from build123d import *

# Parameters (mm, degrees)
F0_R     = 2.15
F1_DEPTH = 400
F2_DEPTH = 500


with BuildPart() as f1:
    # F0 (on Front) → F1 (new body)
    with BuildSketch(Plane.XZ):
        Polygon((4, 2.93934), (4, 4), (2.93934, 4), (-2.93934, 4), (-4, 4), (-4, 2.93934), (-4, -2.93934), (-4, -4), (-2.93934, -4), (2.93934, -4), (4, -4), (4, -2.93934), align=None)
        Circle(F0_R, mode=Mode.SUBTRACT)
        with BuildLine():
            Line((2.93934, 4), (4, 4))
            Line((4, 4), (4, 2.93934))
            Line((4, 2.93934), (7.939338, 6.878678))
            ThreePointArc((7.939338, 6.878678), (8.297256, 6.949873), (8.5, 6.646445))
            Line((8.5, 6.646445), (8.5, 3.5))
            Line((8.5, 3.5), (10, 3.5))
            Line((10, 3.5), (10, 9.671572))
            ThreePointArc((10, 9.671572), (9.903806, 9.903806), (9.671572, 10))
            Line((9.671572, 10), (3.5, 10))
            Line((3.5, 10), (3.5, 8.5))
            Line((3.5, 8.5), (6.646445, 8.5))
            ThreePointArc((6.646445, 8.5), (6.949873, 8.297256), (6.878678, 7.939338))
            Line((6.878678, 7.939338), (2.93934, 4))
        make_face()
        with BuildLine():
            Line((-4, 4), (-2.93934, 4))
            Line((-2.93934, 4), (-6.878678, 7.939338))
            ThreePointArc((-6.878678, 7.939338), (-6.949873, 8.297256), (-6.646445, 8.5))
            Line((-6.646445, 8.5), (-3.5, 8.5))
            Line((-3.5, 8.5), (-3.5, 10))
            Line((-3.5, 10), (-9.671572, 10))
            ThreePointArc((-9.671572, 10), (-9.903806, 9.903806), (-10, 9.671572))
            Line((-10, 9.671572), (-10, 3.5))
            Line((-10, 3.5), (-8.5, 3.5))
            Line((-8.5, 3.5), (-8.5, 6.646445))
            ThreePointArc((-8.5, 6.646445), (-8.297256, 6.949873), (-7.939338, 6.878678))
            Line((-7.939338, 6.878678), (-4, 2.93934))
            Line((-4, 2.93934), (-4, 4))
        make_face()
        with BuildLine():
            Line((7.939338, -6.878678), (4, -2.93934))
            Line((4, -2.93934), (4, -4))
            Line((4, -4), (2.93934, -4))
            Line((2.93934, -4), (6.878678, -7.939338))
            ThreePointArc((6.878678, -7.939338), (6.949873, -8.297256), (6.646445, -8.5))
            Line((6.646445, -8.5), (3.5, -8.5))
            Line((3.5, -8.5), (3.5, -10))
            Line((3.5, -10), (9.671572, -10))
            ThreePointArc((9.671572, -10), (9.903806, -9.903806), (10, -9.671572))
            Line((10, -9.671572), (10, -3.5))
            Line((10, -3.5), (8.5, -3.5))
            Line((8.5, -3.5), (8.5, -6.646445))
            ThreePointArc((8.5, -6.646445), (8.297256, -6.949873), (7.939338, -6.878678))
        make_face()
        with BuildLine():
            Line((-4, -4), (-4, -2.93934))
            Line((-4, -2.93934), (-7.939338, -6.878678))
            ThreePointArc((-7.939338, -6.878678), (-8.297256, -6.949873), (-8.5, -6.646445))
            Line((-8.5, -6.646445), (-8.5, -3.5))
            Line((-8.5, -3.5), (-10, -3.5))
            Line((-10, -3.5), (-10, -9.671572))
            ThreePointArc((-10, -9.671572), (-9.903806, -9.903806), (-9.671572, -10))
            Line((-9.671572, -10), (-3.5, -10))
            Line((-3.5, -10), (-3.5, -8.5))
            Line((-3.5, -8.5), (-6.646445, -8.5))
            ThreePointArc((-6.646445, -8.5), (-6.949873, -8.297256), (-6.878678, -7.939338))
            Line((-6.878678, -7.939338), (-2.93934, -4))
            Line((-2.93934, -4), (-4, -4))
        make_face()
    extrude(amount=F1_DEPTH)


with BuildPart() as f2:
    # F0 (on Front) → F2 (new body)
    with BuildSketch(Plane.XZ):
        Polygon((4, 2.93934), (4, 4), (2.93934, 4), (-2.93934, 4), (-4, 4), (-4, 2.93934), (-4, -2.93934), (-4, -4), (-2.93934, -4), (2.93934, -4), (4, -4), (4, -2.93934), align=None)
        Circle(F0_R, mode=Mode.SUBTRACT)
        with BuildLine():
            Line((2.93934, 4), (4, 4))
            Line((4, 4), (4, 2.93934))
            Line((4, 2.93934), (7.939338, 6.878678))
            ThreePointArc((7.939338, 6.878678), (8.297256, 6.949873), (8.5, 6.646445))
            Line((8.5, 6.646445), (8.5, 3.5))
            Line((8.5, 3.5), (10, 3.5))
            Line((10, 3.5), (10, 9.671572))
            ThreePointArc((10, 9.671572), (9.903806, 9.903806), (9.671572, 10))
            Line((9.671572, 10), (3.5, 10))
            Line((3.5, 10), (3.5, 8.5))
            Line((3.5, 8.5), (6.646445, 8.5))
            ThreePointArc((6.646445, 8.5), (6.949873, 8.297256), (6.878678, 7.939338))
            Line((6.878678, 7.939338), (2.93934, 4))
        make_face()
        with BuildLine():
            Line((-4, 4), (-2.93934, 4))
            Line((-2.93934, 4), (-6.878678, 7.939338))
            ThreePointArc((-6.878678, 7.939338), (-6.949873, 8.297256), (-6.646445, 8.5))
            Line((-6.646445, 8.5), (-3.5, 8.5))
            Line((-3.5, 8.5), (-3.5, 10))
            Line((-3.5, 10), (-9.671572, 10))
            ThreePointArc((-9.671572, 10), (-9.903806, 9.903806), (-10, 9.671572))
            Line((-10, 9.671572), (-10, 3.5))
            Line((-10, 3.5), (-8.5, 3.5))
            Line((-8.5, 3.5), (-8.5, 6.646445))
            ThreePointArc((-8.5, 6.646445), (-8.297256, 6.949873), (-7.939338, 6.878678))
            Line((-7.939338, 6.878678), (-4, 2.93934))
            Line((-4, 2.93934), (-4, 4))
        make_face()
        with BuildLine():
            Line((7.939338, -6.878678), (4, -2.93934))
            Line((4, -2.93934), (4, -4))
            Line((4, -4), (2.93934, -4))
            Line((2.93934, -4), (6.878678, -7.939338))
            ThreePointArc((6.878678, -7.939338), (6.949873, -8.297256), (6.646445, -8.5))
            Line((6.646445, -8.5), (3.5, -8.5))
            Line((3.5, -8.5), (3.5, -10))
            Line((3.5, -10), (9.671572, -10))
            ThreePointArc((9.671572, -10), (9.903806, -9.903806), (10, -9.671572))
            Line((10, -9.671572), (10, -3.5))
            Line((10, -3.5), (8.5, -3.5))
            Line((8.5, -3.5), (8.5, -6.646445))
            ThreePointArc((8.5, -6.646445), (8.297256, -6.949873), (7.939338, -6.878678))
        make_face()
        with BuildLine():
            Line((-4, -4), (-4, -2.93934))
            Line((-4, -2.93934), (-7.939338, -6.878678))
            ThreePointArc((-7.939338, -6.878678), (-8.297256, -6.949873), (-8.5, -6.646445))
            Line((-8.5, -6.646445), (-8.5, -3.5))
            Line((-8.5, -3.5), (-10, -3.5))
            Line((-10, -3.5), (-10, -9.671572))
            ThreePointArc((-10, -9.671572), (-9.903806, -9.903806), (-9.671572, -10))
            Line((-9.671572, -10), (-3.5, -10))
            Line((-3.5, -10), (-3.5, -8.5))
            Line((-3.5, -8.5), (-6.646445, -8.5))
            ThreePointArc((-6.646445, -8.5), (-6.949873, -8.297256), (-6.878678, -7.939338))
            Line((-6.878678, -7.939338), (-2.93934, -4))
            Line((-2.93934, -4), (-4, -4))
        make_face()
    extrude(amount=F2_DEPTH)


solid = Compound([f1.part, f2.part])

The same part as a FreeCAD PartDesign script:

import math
import FreeCAD as App
import Part
import Sketcher

doc = App.newDocument("Part")
body = doc.addObject("PartDesign::Body", "Body")

# Sketch on XZ plane
sketch1 = body.newObject("Sketcher::SketchObject", "Sketch")
sketch1.AttachmentSupport = (doc.getObject("XZ_Plane"), [""])
sketch1.MapMode = "FlatFace"
sketch1.addGeometry([
    Part.LineSegment(App.Vector(2.94, 4, 0), App.Vector(-2.94, 4, 0)),  # 0
    Part.LineSegment(App.Vector(-2.94, 4, 0), App.Vector(-6.88, 7.94, 0)),  # 1
    Part.ArcOfCircle(Part.Circle(App.Vector(-6.65, 8.17, 0), App.Vector(0, 0, 1), 0.33), math.radians(90), math.radians(225)),  # 2
    Part.LineSegment(App.Vector(-6.65, 8.5, 0), App.Vector(-3.5, 8.5, 0)),  # 3
    Part.LineSegment(App.Vector(-3.5, 8.5, 0), App.Vector(-3.5, 10, 0)),  # 4
    Part.LineSegment(App.Vector(-3.5, 10, 0), App.Vector(-9.67, 10, 0)),  # 5
    Part.ArcOfCircle(Part.Circle(App.Vector(-9.67, 9.67, 0), App.Vector(0, 0, 1), 0.33), math.radians(90), math.radians(180)),  # 6
    Part.LineSegment(App.Vector(-10, 9.67, 0), App.Vector(-10, 3.5, 0)),  # 7
    Part.LineSegment(App.Vector(-10, 3.5, 0), App.Vector(-8.5, 3.5, 0)),  # 8
    Part.LineSegment(App.Vector(-8.5, 3.5, 0), App.Vector(-8.5, 6.65, 0)),  # 9
    Part.ArcOfCircle(Part.Circle(App.Vector(-8.17, 6.65, 0), App.Vector(0, 0, 1), 0.33), math.radians(45), math.radians(180)),  # 10
    Part.LineSegment(App.Vector(-7.94, 6.88, 0), App.Vector(-4, 2.94, 0)),  # 11
    Part.LineSegment(App.Vector(-4, 2.94, 0), App.Vector(-4, -2.94, 0)),  # 12
    Part.LineSegment(App.Vector(-4, -2.94, 0), App.Vector(-7.94, -6.88, 0)),  # 13
    Part.ArcOfCircle(Part.Circle(App.Vector(-8.17, -6.65, 0), App.Vector(0, 0, 1), 0.33), math.radians(180), math.radians(315)),  # 14
    Part.LineSegment(App.Vector(-8.5, -6.65, 0), App.Vector(-8.5, -3.5, 0)),  # 15
    Part.LineSegment(App.Vector(-8.5, -3.5, 0), App.Vector(-10, -3.5, 0)),  # 16
    Part.LineSegment(App.Vector(-10, -3.5, 0), App.Vector(-10, -9.67, 0)),  # 17
    Part.ArcOfCircle(Part.Circle(App.Vector(-9.67, -9.67, 0), App.Vector(0, 0, 1), 0.33), math.radians(180), math.radians(270)),  # 18
    Part.LineSegment(App.Vector(-9.67, -10, 0), App.Vector(-3.5, -10, 0)),  # 19
    Part.LineSegment(App.Vector(-3.5, -10, 0), App.Vector(-3.5, -8.5, 0)),  # 20
    Part.LineSegment(App.Vector(-3.5, -8.5, 0), App.Vector(-6.65, -8.5, 0)),  # 21
    Part.ArcOfCircle(Part.Circle(App.Vector(-6.65, -8.17, 0), App.Vector(0, 0, 1), 0.33), math.radians(135), math.radians(270)),  # 22
    Part.LineSegment(App.Vector(-6.88, -7.94, 0), App.Vector(-2.94, -4, 0)),  # 23
    Part.LineSegment(App.Vector(-2.94, -4, 0), App.Vector(2.94, -4, 0)),  # 24
    Part.LineSegment(App.Vector(2.94, -4, 0), App.Vector(6.88, -7.94, 0)),  # 25
    Part.ArcOfCircle(Part.Circle(App.Vector(6.65, -8.17, 0), App.Vector(0, 0, 1), 0.33), math.radians(-90), math.radians(45)),  # 26
    Part.LineSegment(App.Vector(6.65, -8.5, 0), App.Vector(3.5, -8.5, 0)),  # 27
    Part.LineSegment(App.Vector(3.5, -8.5, 0), App.Vector(3.5, -10, 0)),  # 28
    Part.LineSegment(App.Vector(3.5, -10, 0), App.Vector(9.67, -10, 0)),  # 29
    Part.ArcOfCircle(Part.Circle(App.Vector(9.67, -9.67, 0), App.Vector(0, 0, 1), 0.33), math.radians(-90), math.radians(0)),  # 30
    Part.LineSegment(App.Vector(10, -9.67, 0), App.Vector(10, -3.5, 0)),  # 31
    Part.LineSegment(App.Vector(10, -3.5, 0), App.Vector(8.5, -3.5, 0)),  # 32
    Part.LineSegment(App.Vector(8.5, -3.5, 0), App.Vector(8.5, -6.65, 0)),  # 33
    Part.ArcOfCircle(Part.Circle(App.Vector(8.17, -6.65, 0), App.Vector(0, 0, 1), 0.33), math.radians(-135), math.radians(0)),  # 34
    Part.LineSegment(App.Vector(7.94, -6.88, 0), App.Vector(4, -2.94, 0)),  # 35
    Part.LineSegment(App.Vector(4, -2.94, 0), App.Vector(4, 2.94, 0)),  # 36
    Part.LineSegment(App.Vector(4, 2.94, 0), App.Vector(7.94, 6.88, 0)),  # 37
    Part.ArcOfCircle(Part.Circle(App.Vector(8.17, 6.65, 0), App.Vector(0, 0, 1), 0.33), math.radians(0), math.radians(135)),  # 38
    Part.LineSegment(App.Vector(8.5, 6.65, 0), App.Vector(8.5, 3.5, 0)),  # 39
    Part.LineSegment(App.Vector(8.5, 3.5, 0), App.Vector(10, 3.5, 0)),  # 40
    Part.LineSegment(App.Vector(10, 3.5, 0), App.Vector(10, 9.67, 0)),  # 41
    Part.ArcOfCircle(Part.Circle(App.Vector(9.67, 9.67, 0), App.Vector(0, 0, 1), 0.33), math.radians(0), math.radians(90)),  # 42
    Part.LineSegment(App.Vector(9.67, 10, 0), App.Vector(3.5, 10, 0)),  # 43
    Part.LineSegment(App.Vector(3.5, 10, 0), App.Vector(3.5, 8.5, 0)),  # 44
    Part.LineSegment(App.Vector(3.5, 8.5, 0), App.Vector(6.65, 8.5, 0)),  # 45
    Part.ArcOfCircle(Part.Circle(App.Vector(6.65, 8.17, 0), App.Vector(0, 0, 1), 0.33), math.radians(-45), math.radians(90)),  # 46
    Part.LineSegment(App.Vector(6.88, 7.94, 0), App.Vector(2.94, 4, 0)),  # 47
    Part.Circle(App.Vector(0, 0, 0), App.Vector(0, 0, 1), 2.15),  # 48
], False)
sketch1.addConstraint([
    Sketcher.Constraint("Coincident", 0, 2, 1, 1),
    Sketcher.Constraint("Coincident", 1, 2, 2, 2),
    Sketcher.Constraint("Tangent", 2, 1, 3, 1),
    Sketcher.Constraint("Coincident", 3, 2, 4, 1),
    Sketcher.Constraint("Coincident", 4, 2, 5, 1),
    Sketcher.Constraint("Coincident", 5, 2, 6, 1),
    Sketcher.Constraint("Coincident", 6, 2, 7, 1),
    Sketcher.Constraint("Coincident", 7, 2, 8, 1),
    Sketcher.Constraint("Coincident", 8, 2, 9, 1),
    Sketcher.Constraint("Tangent", 9, 2, 10, 2),
    Sketcher.Constraint("Coincident", 10, 1, 11, 1),
    Sketcher.Constraint("Coincident", 11, 2, 12, 1),
    Sketcher.Constraint("Coincident", 12, 2, 13, 1),
    Sketcher.Constraint("Coincident", 13, 2, 14, 2),
    Sketcher.Constraint("Tangent", 14, 1, 15, 1),
    Sketcher.Constraint("Coincident", 15, 2, 16, 1),
    Sketcher.Constraint("Coincident", 16, 2, 17, 1),
    Sketcher.Constraint("Coincident", 17, 2, 18, 1),
    Sketcher.Constraint("Coincident", 18, 2, 19, 1),
    Sketcher.Constraint("Coincident", 19, 2, 20, 1),
    Sketcher.Constraint("Coincident", 20, 2, 21, 1),
    Sketcher.Constraint("Tangent", 21, 2, 22, 2),
    Sketcher.Constraint("Coincident", 22, 1, 23, 1),
    Sketcher.Constraint("Coincident", 23, 2, 24, 1),
    Sketcher.Constraint("Coincident", 24, 2, 25, 1),
    Sketcher.Constraint("Coincident", 25, 2, 26, 2),
    Sketcher.Constraint("Tangent", 26, 1, 27, 1),
    Sketcher.Constraint("Coincident", 27, 2, 28, 1),
    Sketcher.Constraint("Coincident", 28, 2, 29, 1),
    Sketcher.Constraint("Coincident", 29, 2, 30, 1),
    Sketcher.Constraint("Coincident", 30, 2, 31, 1),
    Sketcher.Constraint("Coincident", 31, 2, 32, 1),
    Sketcher.Constraint("Coincident", 32, 2, 33, 1),
    Sketcher.Constraint("Tangent", 33, 2, 34, 2),
    Sketcher.Constraint("Coincident", 34, 1, 35, 1),
    Sketcher.Constraint("Coincident", 35, 2, 36, 1),
    Sketcher.Constraint("Coincident", 36, 2, 37, 1),
    Sketcher.Constraint("Coincident", 37, 2, 38, 2),
    Sketcher.Constraint("Tangent", 38, 1, 39, 1),
    Sketcher.Constraint("Coincident", 39, 2, 40, 1),
    Sketcher.Constraint("Coincident", 40, 2, 41, 1),
    Sketcher.Constraint("Coincident", 41, 2, 42, 1),
    Sketcher.Constraint("Coincident", 42, 2, 43, 1),
    Sketcher.Constraint("Coincident", 43, 2, 44, 1),
    Sketcher.Constraint("Coincident", 44, 2, 45, 1),
    Sketcher.Constraint("Tangent", 45, 2, 46, 2),
    Sketcher.Constraint("Coincident", 46, 1, 47, 1),
    Sketcher.Constraint("Coincident", 47, 2, 0, 1),
    Sketcher.Constraint("Horizontal", 0),
    Sketcher.Constraint("Horizontal", 3),
    Sketcher.Constraint("Vertical", 4),
    Sketcher.Constraint("Horizontal", 5),
    Sketcher.Constraint("Vertical", 7),
    Sketcher.Constraint("Horizontal", 8),
    Sketcher.Constraint("Vertical", 9),
    Sketcher.Constraint("Vertical", 12),
    Sketcher.Constraint("Vertical", 15),
    Sketcher.Constraint("Horizontal", 16),
    Sketcher.Constraint("Vertical", 17),
    Sketcher.Constraint("Horizontal", 19),
    Sketcher.Constraint("Vertical", 20),
    Sketcher.Constraint("Horizontal", 21),
    Sketcher.Constraint("Horizontal", 24),
    Sketcher.Constraint("Horizontal", 27),
    Sketcher.Constraint("Vertical", 28),
    Sketcher.Constraint("Horizontal", 29),
    Sketcher.Constraint("Vertical", 31),
    Sketcher.Constraint("Horizontal", 32),
    Sketcher.Constraint("Vertical", 33),
    Sketcher.Constraint("Vertical", 36),
    Sketcher.Constraint("Vertical", 39),
    Sketcher.Constraint("Horizontal", 40),
    Sketcher.Constraint("Vertical", 41),
    Sketcher.Constraint("Horizontal", 43),
    Sketcher.Constraint("Vertical", 44),
    Sketcher.Constraint("Horizontal", 45),
    Sketcher.Constraint("Coincident", 48, 3, -1, 1),
    Sketcher.Constraint("Equal", 2, 6),
    Sketcher.Constraint("Equal", 6, 10),
    Sketcher.Constraint("Equal", 10, 14),
    Sketcher.Constraint("Equal", 14, 18),
    Sketcher.Constraint("Equal", 18, 22),
    Sketcher.Constraint("Equal", 22, 26),
    Sketcher.Constraint("Equal", 26, 30),
    Sketcher.Constraint("Equal", 30, 34),
    Sketcher.Constraint("Equal", 34, 38),
    Sketcher.Constraint("Equal", 38, 42),
    Sketcher.Constraint("Equal", 42, 46),
    Sketcher.Constraint("Symmetric", 2, 3, 26, 3, -1, 1),
    Sketcher.Constraint("Symmetric", 6, 3, 30, 3, -1, 1),
    Sketcher.Constraint("Symmetric", 10, 3, 34, 3, -1, 1),
    Sketcher.Constraint("Symmetric", 14, 3, 38, 3, -1, 1),
    Sketcher.Constraint("Symmetric", 18, 3, 42, 3, -1, 1),
    Sketcher.Constraint("Symmetric", 22, 3, 46, 3, -1, 1),
    Sketcher.Constraint("Symmetric", 0, 2, 24, 2, -1, 1),
    Sketcher.Constraint("Symmetric", 11, 2, 35, 2, -1, 1),
    Sketcher.Constraint("Symmetric", 22, 3, 26, 3, -2),
    Sketcher.Constraint("Symmetric", 18, 3, 30, 3, -2),
    Sketcher.Constraint("Symmetric", 14, 3, 34, 3, -2),
    Sketcher.Constraint("Parallel", 1, 11),
    Sketcher.Constraint("Perpendicular", 11, 13),
    Sketcher.Constraint("Parallel", 13, 23),
    Sketcher.Constraint("Perpendicular", 35, 37),
    Sketcher.Constraint("Parallel", 37, 47),
    Sketcher.Constraint("Horizontal", 42, 3, 6, 2),
    Sketcher.Constraint("Horizontal", 30, 3, 17, 2),
    Sketcher.Constraint("Horizontal", 22, 1, 25, 2),
    Sketcher.Constraint("Horizontal", 17, 2, 30, 2),
    Sketcher.Constraint("Horizontal", 16, 2, 31, 2),
    Sketcher.Constraint("Horizontal", 13, 2, 34, 1),
    Sketcher.Constraint("Horizontal", 12, 2, 35, 2),
    Sketcher.Constraint("Horizontal", 10, 1, 37, 2),
    Sketcher.Constraint("Horizontal", 8, 2, 39, 2),
    Sketcher.Constraint("Horizontal", 6, 2, 41, 2),
    Sketcher.Constraint("Horizontal", 1, 2, 46, 1),
    Sketcher.Constraint("Vertical", 18, 3, 5, 2),
    Sketcher.Constraint("Vertical", 10, 1, 13, 2),
    Sketcher.Constraint("Vertical", 5, 2, 18, 2),
    Sketcher.Constraint("Vertical", 4, 2, 19, 2),
    Sketcher.Constraint("Vertical", 1, 2, 22, 1),
    Sketcher.Constraint("Vertical", 42, 3, 29, 2),
    Sketcher.Constraint("Vertical", 29, 2, 42, 2),
    Sketcher.Constraint("Vertical", 28, 2, 43, 2),
    Sketcher.Constraint("Equal", 21, 27),
    Sketcher.Constraint("Equal", 40, 4),
    Sketcher.Constraint("Equal", 43, 7),
    Sketcher.Constraint("Equal", 45, 9),
    Sketcher.Constraint("Equal", 24, 12),
    Sketcher.Constraint("Equal", 9, 15),
    Sketcher.Constraint("Equal", 1, 11),
    Sketcher.Constraint("Diameter", 48, 4.3),
    Sketcher.Constraint("DistanceX", 8, 1, 8, 2, 1.5),
    Sketcher.Constraint("DistanceY", -1, 1, 0, 2, 4.0),
    Sketcher.Constraint("DistanceY", -1, 1, 4, 2, 10.0),
    Sketcher.Constraint("DistanceX", 6, 2, -1, 1, 10.0),
    Sketcher.Constraint("DistanceX", 3, 2, -1, 1, 3.5),
    Sketcher.Constraint("Radius", 2, 0.328428),
    Sketcher.Constraint("DistanceX", 0, 2, 0, 1, 5.87868),
    Sketcher.Constraint("DistanceY", -1, 1, 1, 2, 7.939338),
])
pad1 = body.newObject("PartDesign::Pad", "Pad")
pad1.Profile = sketch1
pad1.Length = 400
body2 = doc.addObject("PartDesign::Body", "Body001")

# Sketch on XZ plane
sketch2 = body2.newObject("Sketcher::SketchObject", "Sketch001")
sketch2.AttachmentSupport = (doc.getObject("XZ_Plane001"), [""])
sketch2.MapMode = "FlatFace"
sketch2.addGeometry([
    Part.LineSegment(App.Vector(2.94, 4, 0), App.Vector(-2.94, 4, 0)),  # 0
    Part.LineSegment(App.Vector(-2.94, 4, 0), App.Vector(-6.88, 7.94, 0)),  # 1
    Part.ArcOfCircle(Part.Circle(App.Vector(-6.65, 8.17, 0), App.Vector(0, 0, 1), 0.33), math.radians(90), math.radians(225)),  # 2
    Part.LineSegment(App.Vector(-6.65, 8.5, 0), App.Vector(-3.5, 8.5, 0)),  # 3
    Part.LineSegment(App.Vector(-3.5, 8.5, 0), App.Vector(-3.5, 10, 0)),  # 4
    Part.LineSegment(App.Vector(-3.5, 10, 0), App.Vector(-9.67, 10, 0)),  # 5
    Part.ArcOfCircle(Part.Circle(App.Vector(-9.67, 9.67, 0), App.Vector(0, 0, 1), 0.33), math.radians(90), math.radians(180)),  # 6
    Part.LineSegment(App.Vector(-10, 9.67, 0), App.Vector(-10, 3.5, 0)),  # 7
    Part.LineSegment(App.Vector(-10, 3.5, 0), App.Vector(-8.5, 3.5, 0)),  # 8
    Part.LineSegment(App.Vector(-8.5, 3.5, 0), App.Vector(-8.5, 6.65, 0)),  # 9
    Part.ArcOfCircle(Part.Circle(App.Vector(-8.17, 6.65, 0), App.Vector(0, 0, 1), 0.33), math.radians(45), math.radians(180)),  # 10
    Part.LineSegment(App.Vector(-7.94, 6.88, 0), App.Vector(-4, 2.94, 0)),  # 11
    Part.LineSegment(App.Vector(-4, 2.94, 0), App.Vector(-4, -2.94, 0)),  # 12
    Part.LineSegment(App.Vector(-4, -2.94, 0), App.Vector(-7.94, -6.88, 0)),  # 13
    Part.ArcOfCircle(Part.Circle(App.Vector(-8.17, -6.65, 0), App.Vector(0, 0, 1), 0.33), math.radians(180), math.radians(315)),  # 14
    Part.LineSegment(App.Vector(-8.5, -6.65, 0), App.Vector(-8.5, -3.5, 0)),  # 15
    Part.LineSegment(App.Vector(-8.5, -3.5, 0), App.Vector(-10, -3.5, 0)),  # 16
    Part.LineSegment(App.Vector(-10, -3.5, 0), App.Vector(-10, -9.67, 0)),  # 17
    Part.ArcOfCircle(Part.Circle(App.Vector(-9.67, -9.67, 0), App.Vector(0, 0, 1), 0.33), math.radians(180), math.radians(270)),  # 18
    Part.LineSegment(App.Vector(-9.67, -10, 0), App.Vector(-3.5, -10, 0)),  # 19
    Part.LineSegment(App.Vector(-3.5, -10, 0), App.Vector(-3.5, -8.5, 0)),  # 20
    Part.LineSegment(App.Vector(-3.5, -8.5, 0), App.Vector(-6.65, -8.5, 0)),  # 21
    Part.ArcOfCircle(Part.Circle(App.Vector(-6.65, -8.17, 0), App.Vector(0, 0, 1), 0.33), math.radians(135), math.radians(270)),  # 22
    Part.LineSegment(App.Vector(-6.88, -7.94, 0), App.Vector(-2.94, -4, 0)),  # 23
    Part.LineSegment(App.Vector(-2.94, -4, 0), App.Vector(2.94, -4, 0)),  # 24
    Part.LineSegment(App.Vector(2.94, -4, 0), App.Vector(6.88, -7.94, 0)),  # 25
    Part.ArcOfCircle(Part.Circle(App.Vector(6.65, -8.17, 0), App.Vector(0, 0, 1), 0.33), math.radians(-90), math.radians(45)),  # 26
    Part.LineSegment(App.Vector(6.65, -8.5, 0), App.Vector(3.5, -8.5, 0)),  # 27
    Part.LineSegment(App.Vector(3.5, -8.5, 0), App.Vector(3.5, -10, 0)),  # 28
    Part.LineSegment(App.Vector(3.5, -10, 0), App.Vector(9.67, -10, 0)),  # 29
    Part.ArcOfCircle(Part.Circle(App.Vector(9.67, -9.67, 0), App.Vector(0, 0, 1), 0.33), math.radians(-90), math.radians(0)),  # 30
    Part.LineSegment(App.Vector(10, -9.67, 0), App.Vector(10, -3.5, 0)),  # 31
    Part.LineSegment(App.Vector(10, -3.5, 0), App.Vector(8.5, -3.5, 0)),  # 32
    Part.LineSegment(App.Vector(8.5, -3.5, 0), App.Vector(8.5, -6.65, 0)),  # 33
    Part.ArcOfCircle(Part.Circle(App.Vector(8.17, -6.65, 0), App.Vector(0, 0, 1), 0.33), math.radians(-135), math.radians(0)),  # 34
    Part.LineSegment(App.Vector(7.94, -6.88, 0), App.Vector(4, -2.94, 0)),  # 35
    Part.LineSegment(App.Vector(4, -2.94, 0), App.Vector(4, 2.94, 0)),  # 36
    Part.LineSegment(App.Vector(4, 2.94, 0), App.Vector(7.94, 6.88, 0)),  # 37
    Part.ArcOfCircle(Part.Circle(App.Vector(8.17, 6.65, 0), App.Vector(0, 0, 1), 0.33), math.radians(0), math.radians(135)),  # 38
    Part.LineSegment(App.Vector(8.5, 6.65, 0), App.Vector(8.5, 3.5, 0)),  # 39
    Part.LineSegment(App.Vector(8.5, 3.5, 0), App.Vector(10, 3.5, 0)),  # 40
    Part.LineSegment(App.Vector(10, 3.5, 0), App.Vector(10, 9.67, 0)),  # 41
    Part.ArcOfCircle(Part.Circle(App.Vector(9.67, 9.67, 0), App.Vector(0, 0, 1), 0.33), math.radians(0), math.radians(90)),  # 42
    Part.LineSegment(App.Vector(9.67, 10, 0), App.Vector(3.5, 10, 0)),  # 43
    Part.LineSegment(App.Vector(3.5, 10, 0), App.Vector(3.5, 8.5, 0)),  # 44
    Part.LineSegment(App.Vector(3.5, 8.5, 0), App.Vector(6.65, 8.5, 0)),  # 45
    Part.ArcOfCircle(Part.Circle(App.Vector(6.65, 8.17, 0), App.Vector(0, 0, 1), 0.33), math.radians(-45), math.radians(90)),  # 46
    Part.LineSegment(App.Vector(6.88, 7.94, 0), App.Vector(2.94, 4, 0)),  # 47
    Part.Circle(App.Vector(0, 0, 0), App.Vector(0, 0, 1), 2.15),  # 48
], False)
sketch2.addConstraint([
    Sketcher.Constraint("Coincident", 0, 2, 1, 1),
    Sketcher.Constraint("Coincident", 1, 2, 2, 2),
    Sketcher.Constraint("Tangent", 2, 1, 3, 1),
    Sketcher.Constraint("Coincident", 3, 2, 4, 1),
    Sketcher.Constraint("Coincident", 4, 2, 5, 1),
    Sketcher.Constraint("Coincident", 5, 2, 6, 1),
    Sketcher.Constraint("Coincident", 6, 2, 7, 1),
    Sketcher.Constraint("Coincident", 7, 2, 8, 1),
    Sketcher.Constraint("Coincident", 8, 2, 9, 1),
    Sketcher.Constraint("Tangent", 9, 2, 10, 2),
    Sketcher.Constraint("Coincident", 10, 1, 11, 1),
    Sketcher.Constraint("Coincident", 11, 2, 12, 1),
    Sketcher.Constraint("Coincident", 12, 2, 13, 1),
    Sketcher.Constraint("Coincident", 13, 2, 14, 2),
    Sketcher.Constraint("Tangent", 14, 1, 15, 1),
    Sketcher.Constraint("Coincident", 15, 2, 16, 1),
    Sketcher.Constraint("Coincident", 16, 2, 17, 1),
    Sketcher.Constraint("Coincident", 17, 2, 18, 1),
    Sketcher.Constraint("Coincident", 18, 2, 19, 1),
    Sketcher.Constraint("Coincident", 19, 2, 20, 1),
    Sketcher.Constraint("Coincident", 20, 2, 21, 1),
    Sketcher.Constraint("Tangent", 21, 2, 22, 2),
    Sketcher.Constraint("Coincident", 22, 1, 23, 1),
    Sketcher.Constraint("Coincident", 23, 2, 24, 1),
    Sketcher.Constraint("Coincident", 24, 2, 25, 1),
    Sketcher.Constraint("Coincident", 25, 2, 26, 2),
    Sketcher.Constraint("Tangent", 26, 1, 27, 1),
    Sketcher.Constraint("Coincident", 27, 2, 28, 1),
    Sketcher.Constraint("Coincident", 28, 2, 29, 1),
    Sketcher.Constraint("Coincident", 29, 2, 30, 1),
    Sketcher.Constraint("Coincident", 30, 2, 31, 1),
    Sketcher.Constraint("Coincident", 31, 2, 32, 1),
    Sketcher.Constraint("Coincident", 32, 2, 33, 1),
    Sketcher.Constraint("Tangent", 33, 2, 34, 2),
    Sketcher.Constraint("Coincident", 34, 1, 35, 1),
    Sketcher.Constraint("Coincident", 35, 2, 36, 1),
    Sketcher.Constraint("Coincident", 36, 2, 37, 1),
    Sketcher.Constraint("Coincident", 37, 2, 38, 2),
    Sketcher.Constraint("Tangent", 38, 1, 39, 1),
    Sketcher.Constraint("Coincident", 39, 2, 40, 1),
    Sketcher.Constraint("Coincident", 40, 2, 41, 1),
    Sketcher.Constraint("Coincident", 41, 2, 42, 1),
    Sketcher.Constraint("Coincident", 42, 2, 43, 1),
    Sketcher.Constraint("Coincident", 43, 2, 44, 1),
    Sketcher.Constraint("Coincident", 44, 2, 45, 1),
    Sketcher.Constraint("Tangent", 45, 2, 46, 2),
    Sketcher.Constraint("Coincident", 46, 1, 47, 1),
    Sketcher.Constraint("Coincident", 47, 2, 0, 1),
    Sketcher.Constraint("Horizontal", 0),
    Sketcher.Constraint("Horizontal", 3),
    Sketcher.Constraint("Vertical", 4),
    Sketcher.Constraint("Horizontal", 5),
    Sketcher.Constraint("Vertical", 7),
    Sketcher.Constraint("Horizontal", 8),
    Sketcher.Constraint("Vertical", 9),
    Sketcher.Constraint("Vertical", 12),
    Sketcher.Constraint("Vertical", 15),
    Sketcher.Constraint("Horizontal", 16),
    Sketcher.Constraint("Vertical", 17),
    Sketcher.Constraint("Horizontal", 19),
    Sketcher.Constraint("Vertical", 20),
    Sketcher.Constraint("Horizontal", 21),
    Sketcher.Constraint("Horizontal", 24),
    Sketcher.Constraint("Horizontal", 27),
    Sketcher.Constraint("Vertical", 28),
    Sketcher.Constraint("Horizontal", 29),
    Sketcher.Constraint("Vertical", 31),
    Sketcher.Constraint("Horizontal", 32),
    Sketcher.Constraint("Vertical", 33),
    Sketcher.Constraint("Vertical", 36),
    Sketcher.Constraint("Vertical", 39),
    Sketcher.Constraint("Horizontal", 40),
    Sketcher.Constraint("Vertical", 41),
    Sketcher.Constraint("Horizontal", 43),
    Sketcher.Constraint("Vertical", 44),
    Sketcher.Constraint("Horizontal", 45),
    Sketcher.Constraint("Coincident", 48, 3, -1, 1),
    Sketcher.Constraint("Equal", 2, 6),
    Sketcher.Constraint("Equal", 6, 10),
    Sketcher.Constraint("Equal", 10, 14),
    Sketcher.Constraint("Equal", 14, 18),
    Sketcher.Constraint("Equal", 18, 22),
    Sketcher.Constraint("Equal", 22, 26),
    Sketcher.Constraint("Equal", 26, 30),
    Sketcher.Constraint("Equal", 30, 34),
    Sketcher.Constraint("Equal", 34, 38),
    Sketcher.Constraint("Equal", 38, 42),
    Sketcher.Constraint("Equal", 42, 46),
    Sketcher.Constraint("Symmetric", 2, 3, 26, 3, -1, 1),
    Sketcher.Constraint("Symmetric", 6, 3, 30, 3, -1, 1),
    Sketcher.Constraint("Symmetric", 10, 3, 34, 3, -1, 1),
    Sketcher.Constraint("Symmetric", 14, 3, 38, 3, -1, 1),
    Sketcher.Constraint("Symmetric", 18, 3, 42, 3, -1, 1),
    Sketcher.Constraint("Symmetric", 22, 3, 46, 3, -1, 1),
    Sketcher.Constraint("Symmetric", 0, 2, 24, 2, -1, 1),
    Sketcher.Constraint("Symmetric", 11, 2, 35, 2, -1, 1),
    Sketcher.Constraint("Symmetric", 22, 3, 26, 3, -2),
    Sketcher.Constraint("Symmetric", 18, 3, 30, 3, -2),
    Sketcher.Constraint("Symmetric", 14, 3, 34, 3, -2),
    Sketcher.Constraint("Parallel", 1, 11),
    Sketcher.Constraint("Perpendicular", 11, 13),
    Sketcher.Constraint("Parallel", 13, 23),
    Sketcher.Constraint("Perpendicular", 35, 37),
    Sketcher.Constraint("Parallel", 37, 47),
    Sketcher.Constraint("Horizontal", 42, 3, 6, 2),
    Sketcher.Constraint("Horizontal", 30, 3, 17, 2),
    Sketcher.Constraint("Horizontal", 22, 1, 25, 2),
    Sketcher.Constraint("Horizontal", 17, 2, 30, 2),
    Sketcher.Constraint("Horizontal", 16, 2, 31, 2),
    Sketcher.Constraint("Horizontal", 13, 2, 34, 1),
    Sketcher.Constraint("Horizontal", 12, 2, 35, 2),
    Sketcher.Constraint("Horizontal", 10, 1, 37, 2),
    Sketcher.Constraint("Horizontal", 8, 2, 39, 2),
    Sketcher.Constraint("Horizontal", 6, 2, 41, 2),
    Sketcher.Constraint("Horizontal", 1, 2, 46, 1),
    Sketcher.Constraint("Vertical", 18, 3, 5, 2),
    Sketcher.Constraint("Vertical", 10, 1, 13, 2),
    Sketcher.Constraint("Vertical", 5, 2, 18, 2),
    Sketcher.Constraint("Vertical", 4, 2, 19, 2),
    Sketcher.Constraint("Vertical", 1, 2, 22, 1),
    Sketcher.Constraint("Vertical", 42, 3, 29, 2),
    Sketcher.Constraint("Vertical", 29, 2, 42, 2),
    Sketcher.Constraint("Vertical", 28, 2, 43, 2),
    Sketcher.Constraint("Equal", 21, 27),
    Sketcher.Constraint("Equal", 40, 4),
    Sketcher.Constraint("Equal", 43, 7),
    Sketcher.Constraint("Equal", 45, 9),
    Sketcher.Constraint("Equal", 24, 12),
    Sketcher.Constraint("Equal", 9, 15),
    Sketcher.Constraint("Equal", 1, 11),
    Sketcher.Constraint("Diameter", 48, 4.3),
    Sketcher.Constraint("DistanceX", 8, 1, 8, 2, 1.5),
    Sketcher.Constraint("DistanceY", -1, 1, 0, 2, 4.0),
    Sketcher.Constraint("DistanceY", -1, 1, 4, 2, 10.0),
    Sketcher.Constraint("DistanceX", 6, 2, -1, 1, 10.0),
    Sketcher.Constraint("DistanceX", 3, 2, -1, 1, 3.5),
    Sketcher.Constraint("Radius", 2, 0.328428),
    Sketcher.Constraint("DistanceX", 0, 2, 0, 1, 5.87868),
    Sketcher.Constraint("DistanceY", -1, 1, 1, 2, 7.939338),
])
pad2 = body2.newObject("PartDesign::Pad", "Pad001")
pad2.Profile = sketch2
pad2.Length = 500

doc.recompute()
